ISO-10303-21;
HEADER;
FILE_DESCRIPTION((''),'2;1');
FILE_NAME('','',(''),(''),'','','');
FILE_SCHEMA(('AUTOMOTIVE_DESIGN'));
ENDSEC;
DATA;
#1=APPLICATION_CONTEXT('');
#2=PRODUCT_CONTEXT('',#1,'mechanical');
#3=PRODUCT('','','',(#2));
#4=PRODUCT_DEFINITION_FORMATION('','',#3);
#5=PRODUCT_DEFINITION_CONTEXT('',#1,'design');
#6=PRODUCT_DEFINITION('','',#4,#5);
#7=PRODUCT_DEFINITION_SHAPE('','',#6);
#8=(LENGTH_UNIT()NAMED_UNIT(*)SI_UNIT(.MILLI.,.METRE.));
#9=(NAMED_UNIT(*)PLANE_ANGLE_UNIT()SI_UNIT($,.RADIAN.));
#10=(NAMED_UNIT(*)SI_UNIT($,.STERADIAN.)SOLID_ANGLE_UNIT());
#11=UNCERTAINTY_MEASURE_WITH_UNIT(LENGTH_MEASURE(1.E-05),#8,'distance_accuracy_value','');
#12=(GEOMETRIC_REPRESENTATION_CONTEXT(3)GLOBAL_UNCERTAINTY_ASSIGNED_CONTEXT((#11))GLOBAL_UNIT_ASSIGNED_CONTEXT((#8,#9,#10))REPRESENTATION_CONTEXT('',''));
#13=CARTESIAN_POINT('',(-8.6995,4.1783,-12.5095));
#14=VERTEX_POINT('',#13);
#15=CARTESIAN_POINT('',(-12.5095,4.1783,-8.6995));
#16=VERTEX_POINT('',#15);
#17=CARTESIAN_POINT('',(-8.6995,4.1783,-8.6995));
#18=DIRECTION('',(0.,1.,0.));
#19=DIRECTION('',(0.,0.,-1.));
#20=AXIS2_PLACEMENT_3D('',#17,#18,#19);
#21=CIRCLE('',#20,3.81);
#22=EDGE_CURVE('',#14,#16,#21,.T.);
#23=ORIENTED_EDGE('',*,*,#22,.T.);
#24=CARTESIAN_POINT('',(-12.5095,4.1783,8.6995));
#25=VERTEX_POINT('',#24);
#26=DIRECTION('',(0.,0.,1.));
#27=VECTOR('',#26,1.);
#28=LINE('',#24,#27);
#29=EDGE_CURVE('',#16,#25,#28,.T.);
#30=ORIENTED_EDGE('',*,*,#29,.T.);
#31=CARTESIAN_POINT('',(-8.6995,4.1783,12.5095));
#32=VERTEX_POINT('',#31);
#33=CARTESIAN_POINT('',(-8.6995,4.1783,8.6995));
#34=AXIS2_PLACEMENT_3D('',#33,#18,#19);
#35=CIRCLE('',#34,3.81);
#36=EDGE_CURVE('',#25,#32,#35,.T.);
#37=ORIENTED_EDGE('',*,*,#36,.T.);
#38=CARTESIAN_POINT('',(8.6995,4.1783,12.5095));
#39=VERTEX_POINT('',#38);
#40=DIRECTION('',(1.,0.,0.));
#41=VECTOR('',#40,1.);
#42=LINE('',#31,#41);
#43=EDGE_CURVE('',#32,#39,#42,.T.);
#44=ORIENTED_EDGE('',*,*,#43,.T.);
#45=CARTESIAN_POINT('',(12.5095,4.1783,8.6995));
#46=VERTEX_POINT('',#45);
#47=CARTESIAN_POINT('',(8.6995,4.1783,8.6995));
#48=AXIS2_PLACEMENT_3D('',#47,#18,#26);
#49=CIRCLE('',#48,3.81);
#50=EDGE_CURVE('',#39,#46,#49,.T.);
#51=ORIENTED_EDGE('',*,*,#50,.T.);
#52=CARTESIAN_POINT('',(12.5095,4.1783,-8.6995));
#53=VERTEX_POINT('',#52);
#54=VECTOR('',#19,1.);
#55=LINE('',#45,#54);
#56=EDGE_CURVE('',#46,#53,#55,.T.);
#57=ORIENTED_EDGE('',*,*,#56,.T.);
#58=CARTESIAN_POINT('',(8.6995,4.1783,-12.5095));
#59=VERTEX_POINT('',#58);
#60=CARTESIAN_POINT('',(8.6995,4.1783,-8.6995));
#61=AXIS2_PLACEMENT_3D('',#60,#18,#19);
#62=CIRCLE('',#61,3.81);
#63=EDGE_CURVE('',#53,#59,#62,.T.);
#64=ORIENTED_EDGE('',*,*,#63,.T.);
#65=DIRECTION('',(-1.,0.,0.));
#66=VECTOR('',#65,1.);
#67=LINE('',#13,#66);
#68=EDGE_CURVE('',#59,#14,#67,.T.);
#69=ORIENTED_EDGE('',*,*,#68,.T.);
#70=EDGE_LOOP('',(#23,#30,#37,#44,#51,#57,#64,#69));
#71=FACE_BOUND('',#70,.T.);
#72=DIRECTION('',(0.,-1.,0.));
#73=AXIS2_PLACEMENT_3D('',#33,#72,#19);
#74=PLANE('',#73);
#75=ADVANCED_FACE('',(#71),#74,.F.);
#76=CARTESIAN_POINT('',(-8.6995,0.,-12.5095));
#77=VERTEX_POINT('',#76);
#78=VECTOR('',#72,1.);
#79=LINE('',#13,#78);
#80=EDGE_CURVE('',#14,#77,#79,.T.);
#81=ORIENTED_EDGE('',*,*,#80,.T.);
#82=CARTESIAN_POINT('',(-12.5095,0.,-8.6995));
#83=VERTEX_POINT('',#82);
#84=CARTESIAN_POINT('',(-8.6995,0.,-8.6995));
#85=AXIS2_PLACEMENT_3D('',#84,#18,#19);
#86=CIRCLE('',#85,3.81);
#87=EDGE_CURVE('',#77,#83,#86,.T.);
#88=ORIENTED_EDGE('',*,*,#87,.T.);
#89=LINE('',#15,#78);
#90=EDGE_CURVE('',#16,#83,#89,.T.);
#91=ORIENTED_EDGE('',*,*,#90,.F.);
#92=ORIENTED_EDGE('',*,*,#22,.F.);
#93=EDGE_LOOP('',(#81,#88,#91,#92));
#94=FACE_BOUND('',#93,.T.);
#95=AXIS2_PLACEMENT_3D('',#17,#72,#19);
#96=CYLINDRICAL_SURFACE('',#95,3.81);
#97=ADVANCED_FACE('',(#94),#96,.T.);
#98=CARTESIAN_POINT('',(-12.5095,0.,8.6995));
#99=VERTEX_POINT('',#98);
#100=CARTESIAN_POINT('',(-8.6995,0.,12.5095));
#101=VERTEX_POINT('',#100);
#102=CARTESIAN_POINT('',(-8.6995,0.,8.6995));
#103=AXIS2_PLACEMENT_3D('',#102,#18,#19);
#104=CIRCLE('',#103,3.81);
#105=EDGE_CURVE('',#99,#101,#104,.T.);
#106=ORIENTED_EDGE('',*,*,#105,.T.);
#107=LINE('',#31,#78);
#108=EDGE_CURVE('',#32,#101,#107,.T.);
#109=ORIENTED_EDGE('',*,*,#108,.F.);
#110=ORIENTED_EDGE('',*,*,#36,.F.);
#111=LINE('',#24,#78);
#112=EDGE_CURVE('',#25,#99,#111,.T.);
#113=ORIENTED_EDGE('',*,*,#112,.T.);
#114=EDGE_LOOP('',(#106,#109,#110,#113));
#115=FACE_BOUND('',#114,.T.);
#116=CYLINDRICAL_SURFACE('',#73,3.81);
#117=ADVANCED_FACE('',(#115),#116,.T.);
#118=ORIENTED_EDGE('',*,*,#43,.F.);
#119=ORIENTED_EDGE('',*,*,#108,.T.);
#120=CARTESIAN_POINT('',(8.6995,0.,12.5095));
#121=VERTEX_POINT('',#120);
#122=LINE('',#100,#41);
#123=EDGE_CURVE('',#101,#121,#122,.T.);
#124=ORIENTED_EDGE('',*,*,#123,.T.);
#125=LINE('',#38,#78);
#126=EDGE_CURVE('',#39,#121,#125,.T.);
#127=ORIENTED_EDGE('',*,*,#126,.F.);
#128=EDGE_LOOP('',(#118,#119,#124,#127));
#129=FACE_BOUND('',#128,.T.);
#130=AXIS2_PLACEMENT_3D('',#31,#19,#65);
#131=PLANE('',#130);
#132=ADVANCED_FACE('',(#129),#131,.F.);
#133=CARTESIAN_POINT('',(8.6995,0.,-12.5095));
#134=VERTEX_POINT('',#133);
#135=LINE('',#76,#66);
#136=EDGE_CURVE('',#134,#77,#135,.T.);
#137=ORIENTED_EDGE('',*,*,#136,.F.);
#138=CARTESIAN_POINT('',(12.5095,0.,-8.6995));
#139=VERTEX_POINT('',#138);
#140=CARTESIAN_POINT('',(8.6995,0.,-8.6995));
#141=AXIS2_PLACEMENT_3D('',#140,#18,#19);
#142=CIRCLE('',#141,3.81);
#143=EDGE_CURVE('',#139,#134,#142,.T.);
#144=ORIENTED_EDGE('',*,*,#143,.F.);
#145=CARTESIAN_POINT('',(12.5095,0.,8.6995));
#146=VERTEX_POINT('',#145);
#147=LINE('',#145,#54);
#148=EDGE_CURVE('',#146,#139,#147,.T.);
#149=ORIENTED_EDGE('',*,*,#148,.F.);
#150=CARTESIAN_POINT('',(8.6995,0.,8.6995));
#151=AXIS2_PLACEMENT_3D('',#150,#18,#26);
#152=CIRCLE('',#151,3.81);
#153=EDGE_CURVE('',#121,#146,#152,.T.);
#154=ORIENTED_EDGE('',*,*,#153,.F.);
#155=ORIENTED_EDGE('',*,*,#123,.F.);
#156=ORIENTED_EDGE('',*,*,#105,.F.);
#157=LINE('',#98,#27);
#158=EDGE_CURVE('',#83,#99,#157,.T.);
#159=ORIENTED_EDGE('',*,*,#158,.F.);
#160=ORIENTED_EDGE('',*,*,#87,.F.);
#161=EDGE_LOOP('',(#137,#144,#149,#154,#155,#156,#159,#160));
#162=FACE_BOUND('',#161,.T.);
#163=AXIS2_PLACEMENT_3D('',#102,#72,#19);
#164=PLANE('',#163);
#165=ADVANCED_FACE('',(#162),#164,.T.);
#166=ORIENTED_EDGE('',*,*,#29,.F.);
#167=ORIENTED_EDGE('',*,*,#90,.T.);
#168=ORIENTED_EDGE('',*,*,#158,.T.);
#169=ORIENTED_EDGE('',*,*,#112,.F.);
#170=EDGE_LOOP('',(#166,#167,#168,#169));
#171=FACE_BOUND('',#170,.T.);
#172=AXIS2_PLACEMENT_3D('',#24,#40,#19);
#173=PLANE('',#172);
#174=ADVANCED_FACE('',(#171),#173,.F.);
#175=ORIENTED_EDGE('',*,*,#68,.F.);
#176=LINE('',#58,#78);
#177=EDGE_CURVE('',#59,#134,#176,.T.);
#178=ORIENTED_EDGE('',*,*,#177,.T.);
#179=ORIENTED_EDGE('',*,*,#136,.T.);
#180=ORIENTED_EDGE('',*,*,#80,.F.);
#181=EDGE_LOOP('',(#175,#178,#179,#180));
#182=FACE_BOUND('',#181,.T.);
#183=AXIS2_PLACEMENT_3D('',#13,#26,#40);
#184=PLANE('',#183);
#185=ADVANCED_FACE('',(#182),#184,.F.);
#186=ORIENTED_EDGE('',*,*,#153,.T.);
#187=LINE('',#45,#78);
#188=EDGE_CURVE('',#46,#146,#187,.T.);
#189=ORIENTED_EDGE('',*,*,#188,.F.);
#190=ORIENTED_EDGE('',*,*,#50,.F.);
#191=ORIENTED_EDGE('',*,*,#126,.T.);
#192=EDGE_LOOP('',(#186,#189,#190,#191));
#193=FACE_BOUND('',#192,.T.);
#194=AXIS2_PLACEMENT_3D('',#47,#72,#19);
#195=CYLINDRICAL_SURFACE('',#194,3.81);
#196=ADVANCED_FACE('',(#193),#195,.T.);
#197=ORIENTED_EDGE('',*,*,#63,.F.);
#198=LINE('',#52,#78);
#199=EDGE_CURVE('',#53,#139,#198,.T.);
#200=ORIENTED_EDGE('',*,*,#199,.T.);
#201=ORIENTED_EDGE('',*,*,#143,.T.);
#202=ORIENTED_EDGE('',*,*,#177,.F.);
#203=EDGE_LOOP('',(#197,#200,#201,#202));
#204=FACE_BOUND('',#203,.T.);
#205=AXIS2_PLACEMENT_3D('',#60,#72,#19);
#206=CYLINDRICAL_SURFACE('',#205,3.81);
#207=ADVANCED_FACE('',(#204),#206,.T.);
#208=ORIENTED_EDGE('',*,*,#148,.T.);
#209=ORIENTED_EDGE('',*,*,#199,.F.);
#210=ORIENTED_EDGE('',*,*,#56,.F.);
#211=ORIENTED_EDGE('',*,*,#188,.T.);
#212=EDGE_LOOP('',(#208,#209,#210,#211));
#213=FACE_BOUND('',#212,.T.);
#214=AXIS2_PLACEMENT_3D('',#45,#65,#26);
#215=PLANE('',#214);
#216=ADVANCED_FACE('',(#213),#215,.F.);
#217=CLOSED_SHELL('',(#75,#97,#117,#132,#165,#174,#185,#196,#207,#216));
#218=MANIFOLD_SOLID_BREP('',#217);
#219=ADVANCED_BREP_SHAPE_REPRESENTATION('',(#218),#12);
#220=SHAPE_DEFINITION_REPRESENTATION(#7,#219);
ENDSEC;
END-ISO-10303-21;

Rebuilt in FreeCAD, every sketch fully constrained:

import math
import FreeCAD as App
import Part
import Sketcher

V = App.Vector
Q = App.Units.Quantity

doc = App.newDocument("Part")
body = doc.addObject("PartDesign::Body", "Body")

# Sketch on XZ plane
sketch1 = doc.addObject("Sketcher::SketchObject", "Sketch")
body.addObject(sketch1)
sketch1.AttachmentSupport = (doc.XZ_Plane, [""])
sketch1.MapMode = "FlatFace"
sketch1.addGeometry(Part.LineSegment(V(-8.7, 12.5, 0), V(8.7, 12.5, 0)), False)
sketch1.addGeometry(Part.ArcOfCircle(Part.Circle(V(8.7, 8.7, 0), V(0, 0, 1), 3.8), math.radians(0), math.radians(90)), False)
sketch1.addGeometry(Part.LineSegment(V(12.5, 8.7, 0), V(12.5, -8.7, 0)), False)
sketch1.addGeometry(Part.ArcOfCircle(Part.Circle(V(8.7, -8.7, 0), V(0, 0, 1), 3.8), math.radians(-90), math.radians(0)), False)
sketch1.addGeometry(Part.LineSegment(V(8.7, -12.5, 0), V(-8.7, -12.5, 0)), False)
sketch1.addGeometry(Part.ArcOfCircle(Part.Circle(V(-8.7, -8.7, 0), V(0, 0, 1), 3.8), math.radians(-180), math.radians(-90)), False)
sketch1.addGeometry(Part.LineSegment(V(-12.5, -8.7, 0), V(-12.5, 8.7, 0)), False)
sketch1.addGeometry(Part.ArcOfCircle(Part.Circle(V(-8.7, 8.7, 0), V(0, 0, 1), 3.8), math.radians(90), math.radians(180)), False)
sketch1.addConstraint(Sketcher.Constraint("Tangent", 0, 2, 1, 2))
sketch1.addConstraint(Sketcher.Constraint("Tangent", 1, 1, 2, 1))
sketch1.addConstraint(Sketcher.Constraint("Tangent", 2, 2, 3, 2))
sketch1.addConstraint(Sketcher.Constraint("Tangent", 3, 1, 4, 1))
sketch1.addConstraint(Sketcher.Constraint("Tangent", 4, 2, 5, 2))
sketch1.addConstraint(Sketcher.Constraint("Tangent", 5, 1, 6, 1))
sketch1.addConstraint(Sketcher.Constraint("Tangent", 6, 2, 7, 2))
sketch1.addConstraint(Sketcher.Constraint("Tangent", 7, 1, 0, 1))
sketch1.addConstraint(Sketcher.Constraint("Horizontal", 0))
sketch1.addConstraint(Sketcher.Constraint("Vertical", 2))
sketch1.addConstraint(Sketcher.Constraint("Horizontal", 4))
sketch1.addConstraint(Sketcher.Constraint("Vertical", 6))
sketch1.addConstraint(Sketcher.Constraint("Equal", 1, 3))
sketch1.addConstraint(Sketcher.Constraint("Equal", 3, 5))
sketch1.addConstraint(Sketcher.Constraint("Equal", 5, 7))
sketch1.addConstraint(Sketcher.Constraint("Symmetric", 1, 3, 5, 3, -1, 1))
sketch1.addConstraint(Sketcher.Constraint("Equal", 4, 2))
sketch1.addConstraint(Sketcher.Constraint("Radius", 1, Q("0.15 in")))
sketch1.addConstraint(Sketcher.Constraint("DistanceX", 0, 1, 0, 2, Q("0.685 in")))
pad1 = doc.addObject("PartDesign::Pad", "Pad")
body.addObject(pad1)
pad1.Profile = sketch1
pad1.Length = Q("0.1645 in")
pad1.Reversed = True

doc.recompute()
